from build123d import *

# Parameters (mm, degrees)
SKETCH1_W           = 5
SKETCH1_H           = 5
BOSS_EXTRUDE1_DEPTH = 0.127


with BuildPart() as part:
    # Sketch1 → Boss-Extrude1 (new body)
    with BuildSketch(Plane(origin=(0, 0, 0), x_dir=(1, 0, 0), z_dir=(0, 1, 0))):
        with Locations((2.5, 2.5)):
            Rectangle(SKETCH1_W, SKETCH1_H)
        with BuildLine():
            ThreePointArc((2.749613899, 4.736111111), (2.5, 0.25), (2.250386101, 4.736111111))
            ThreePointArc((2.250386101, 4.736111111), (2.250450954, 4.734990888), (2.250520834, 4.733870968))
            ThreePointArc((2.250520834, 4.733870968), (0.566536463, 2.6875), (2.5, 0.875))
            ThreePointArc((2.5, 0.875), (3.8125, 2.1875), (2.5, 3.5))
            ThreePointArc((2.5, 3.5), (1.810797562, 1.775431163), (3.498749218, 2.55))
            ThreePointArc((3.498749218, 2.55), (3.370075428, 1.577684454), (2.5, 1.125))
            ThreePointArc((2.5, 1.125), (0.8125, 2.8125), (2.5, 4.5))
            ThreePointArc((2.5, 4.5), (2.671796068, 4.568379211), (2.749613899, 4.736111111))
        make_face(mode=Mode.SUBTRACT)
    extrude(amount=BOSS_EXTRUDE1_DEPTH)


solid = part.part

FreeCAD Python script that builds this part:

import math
import FreeCAD as App
import Part
import Sketcher
from FreeCAD import Vector


def add_polygon(sketch, points):
    """Adds a closed chain of lines whose ends are joined by coincident constraints."""
    first, n = sketch.GeometryCount, len(points)
    for a, b in zip(points, points[1:] + points[:1]):
        sketch.addGeometry(Part.LineSegment(App.Vector(*a, 0), App.Vector(*b, 0)), False)
    for i in range(n):
        sketch.addConstraint(Sketcher.Constraint("Coincident", first + i, 2, first + (i + 1) % n, 1))

doc = App.newDocument("Part")
params = doc.addObject("Spreadsheet::Sheet", "Params")
for row, (alias, value) in enumerate([
    ("sketch1_radius", "1 mm"),
    ("sketch1_width", "5 mm"),
    ("sketch1_radius2", "0.25 mm"),
    ("sketch1_radius3", "2.25 mm"),
    ("pad1_length", "0.127 mm"),
], start=1):
    params.set(f"A{row}", alias)
    params.set(f"B{row}", "=" + value)
    params.setAlias(f"B{row}", alias)

body = doc.addObject("PartDesign::Body", "Body")

# Sketch on XZ plane
sketch1 = body.newObject("Sketcher::SketchObject", "Sketch")
sketch1.AttachmentSupport = (doc.getObject("XZ_Plane"), [""])
sketch1.MapMode = "FlatFace"
add_polygon(sketch1, [(0, -5), (0, 0), (5, 0), (5, -5)])  # lines 0-3
sketch1.addGeometry(Part.ArcOfCircle(Part.Circle(Vector(2.5, -4.75, 0), Vector(0, 0, 1), 0.25), math.radians(3), math.radians(90)), False)  # 4
sketch1.addGeometry(Part.ArcOfCircle(Part.Circle(Vector(2.5, -2.5, 0), Vector(0, 0, 1), 2.25), math.radians(-84), math.radians(264)), False)  # 5
sketch1.addGeometry(Part.ArcOfCircle(Part.Circle(Vector(2.5, -4.75, 0), Vector(0, 0, 1), 0.25), math.radians(176.3), math.radians(176.82)), False)  # 6
sketch1.addGeometry(Part.ArcOfCircle(Part.Circle(Vector(2.5, -2.8125, 0), Vector(0, 0, 1), 1.9375), math.radians(90), math.radians(263)), False)  # 7
sketch1.addGeometry(Part.ArcOfCircle(Part.Circle(Vector(2.5, -2.1875, 0), Vector(0, 0, 1), 1.3125), math.radians(-90), math.radians(90)), False)  # 8
sketch1.addGeometry(Part.ArcOfCircle(Part.Circle(Vector(2.5, -2.5, 0), Vector(0, 0, 1), 1), math.radians(-3), math.radians(270)), False)  # 9
sketch1.addGeometry(Part.ArcOfCircle(Part.Circle(Vector(2.5, -2.1875, 0), Vector(0, 0, 1), 1.0625), math.radians(-20), math.radians(90)), False)  # 10
sketch1.addGeometry(Part.ArcOfCircle(Part.Circle(Vector(2.5, -2.8125, 0), Vector(0, 0, 1), 1.6875), math.radians(90), math.radians(270)), False)  # 11
sketch1.addConstraint([
    Sketcher.Constraint("Coincident", 4, 1, 5, 1),
    Sketcher.Constraint("Coincident", 5, 2, 6, 2),
    Sketcher.Constraint("Coincident", 6, 1, 7, 2),
    Sketcher.Constraint("Tangent", 7, 1, 8, 2),
    Sketcher.Constraint("Tangent", 8, 1, 9, 2),
    Sketcher.Constraint("Coincident", 9, 1, 10, 1),
    Sketcher.Constraint("Tangent", 10, 2, 11, 1),
    Sketcher.Constraint("Tangent", 11, 2, 4, 2),
    Sketcher.Constraint("Vertical", 0),
    Sketcher.Constraint("Horizontal", 1),
    Sketcher.Constraint("Vertical", 2),
    Sketcher.Constraint("Horizontal", 3),
    Sketcher.Constraint("Coincident", 0, 2, -1, 1),
    Sketcher.Constraint("Coincident", 9, 3, 5, 3),
    Sketcher.Constraint("Coincident", 10, 3, 8, 3),
    Sketcher.Constraint("Coincident", 11, 3, 7, 3),
    Sketcher.Constraint("Horizontal", 4, 3, 6, 3),
    Sketcher.Constraint("Horizontal", 4, 1, 5, 2),
    Sketcher.Constraint("Vertical", 4, 3, 5, 3),
    Sketcher.Constraint("Vertical", 5, 3, 7, 3),
    Sketcher.Constraint("Vertical", 7, 3, 8, 3),
    Sketcher.Constraint("Equal", 3, 0),
    Sketcher.Constraint("Radius", 9, 1.0),
    Sketcher.Constraint("DistanceX", 1, 1, 1, 2, 5.0),
    Sketcher.Constraint("Radius", 4, 0.25),
    Sketcher.Constraint("Radius", 5, 2.25),
    Sketcher.Constraint("DistanceX", -1, 1, 4, 3, 2.5),
    Sketcher.Constraint("DistanceY", 5, 3, -1, 1, 2.5),
    Sketcher.Constraint("DistanceY", 11, 2, -1, 1, 4.5),
    Sketcher.Constraint("Radius", 7, 1.9375),
    Sketcher.Constraint("Radius", 8, 1.3125),
    Sketcher.Constraint("Radius", 6, 0.250015),
])
sketch1.setExpression("Constraints[26]", "Params.sketch1_radius")
sketch1.setExpression("Constraints[27]", "Params.sketch1_width")
sketch1.setExpression("Constraints[28]", "Params.sketch1_radius2")
sketch1.setExpression("Constraints[29]", "Params.sketch1_radius3")
pad1 = body.newObject("PartDesign::Pad", "Pad")
pad1.Profile = sketch1
pad1.setExpression("Length", "Params.pad1_length")
pad1.Reversed = True

doc.recompute()
